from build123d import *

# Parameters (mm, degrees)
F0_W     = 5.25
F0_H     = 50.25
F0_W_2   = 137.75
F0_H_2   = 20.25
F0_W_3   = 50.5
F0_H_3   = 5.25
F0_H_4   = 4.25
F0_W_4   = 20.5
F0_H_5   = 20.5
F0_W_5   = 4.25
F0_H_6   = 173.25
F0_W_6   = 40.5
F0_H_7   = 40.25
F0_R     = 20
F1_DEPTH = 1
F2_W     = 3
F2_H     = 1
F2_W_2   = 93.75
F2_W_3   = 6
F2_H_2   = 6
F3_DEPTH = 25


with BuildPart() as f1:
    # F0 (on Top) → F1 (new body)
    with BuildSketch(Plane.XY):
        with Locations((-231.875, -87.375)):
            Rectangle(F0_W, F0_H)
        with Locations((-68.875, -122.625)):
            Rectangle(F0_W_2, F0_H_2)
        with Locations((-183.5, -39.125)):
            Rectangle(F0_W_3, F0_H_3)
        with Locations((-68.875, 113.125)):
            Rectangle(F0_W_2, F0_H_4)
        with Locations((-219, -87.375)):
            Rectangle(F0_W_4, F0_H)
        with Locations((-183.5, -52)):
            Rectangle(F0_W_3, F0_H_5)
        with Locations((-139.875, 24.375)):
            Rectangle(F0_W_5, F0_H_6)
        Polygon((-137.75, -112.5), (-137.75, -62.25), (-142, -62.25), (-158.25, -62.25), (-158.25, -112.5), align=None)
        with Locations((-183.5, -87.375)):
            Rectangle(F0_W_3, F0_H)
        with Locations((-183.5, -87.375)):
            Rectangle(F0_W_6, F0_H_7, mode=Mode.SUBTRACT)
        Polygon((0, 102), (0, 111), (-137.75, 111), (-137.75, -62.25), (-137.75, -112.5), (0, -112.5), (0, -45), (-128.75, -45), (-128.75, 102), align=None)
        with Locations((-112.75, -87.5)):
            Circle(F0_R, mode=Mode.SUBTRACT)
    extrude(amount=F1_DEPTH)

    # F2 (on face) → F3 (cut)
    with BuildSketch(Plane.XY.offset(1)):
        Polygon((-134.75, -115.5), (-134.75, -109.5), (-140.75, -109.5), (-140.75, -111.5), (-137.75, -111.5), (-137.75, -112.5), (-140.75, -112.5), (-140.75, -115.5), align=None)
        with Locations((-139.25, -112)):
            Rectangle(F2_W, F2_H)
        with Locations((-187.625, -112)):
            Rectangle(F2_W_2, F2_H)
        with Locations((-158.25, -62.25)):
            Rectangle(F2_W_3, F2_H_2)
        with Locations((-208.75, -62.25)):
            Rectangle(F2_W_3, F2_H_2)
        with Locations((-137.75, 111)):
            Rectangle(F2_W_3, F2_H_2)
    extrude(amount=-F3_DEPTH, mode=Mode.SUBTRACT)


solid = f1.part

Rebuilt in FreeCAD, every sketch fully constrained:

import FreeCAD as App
import Part
import Sketcher

V = App.Vector
Q = App.Units.Quantity

doc = App.newDocument("Part")
body = doc.addObject("PartDesign::Body", "Body")

sketch1 = doc.addObject("Sketcher::SketchObject", "Sketch")
body.addObject(sketch1)
sketch1.AttachmentSupport = (doc.XY_Plane, [""])
sketch1.MapMode = "FlatFace"
sketch1.addGeometry(Part.LineSegment(V(-234.5, -62.2, 0), V(-234.5, -112.5, 0)), False)
sketch1.addGeometry(Part.LineSegment(V(-234.5, -112.5, 0), V(-137.8, -112.5, 0)), False)
sketch1.addGeometry(Part.LineSegment(V(-137.8, -112.5, 0), V(-137.8, -132.8, 0)), False)
sketch1.addGeometry(Part.LineSegment(V(-137.8, -132.8, 0), V(0, -132.8, 0)), False)
sketch1.addGeometry(Part.LineSegment(V(0, -132.8, 0), V(0, -45, 0)), False)
sketch1.addGeometry(Part.LineSegment(V(0, -45, 0), V(-128.8, -45, 0)), False)
sketch1.addGeometry(Part.LineSegment(V(-128.8, -45, 0), V(-128.8, 102, 0)), False)
sketch1.addGeometry(Part.LineSegment(V(-128.8, 102, 0), V(0, 102, 0)), False)
sketch1.addGeometry(Part.LineSegment(V(0, 102, 0), V(0, 115.2, 0)), False)
sketch1.addGeometry(Part.LineSegment(V(0, 115.2, 0), V(-137.8, 115.2, 0)), False)
sketch1.addGeometry(Part.LineSegment(V(-137.8, 115.2, 0), V(-137.8, 111, 0)), False)
sketch1.addGeometry(Part.LineSegment(V(-137.8, 111, 0), V(-142, 111, 0)), False)
sketch1.addGeometry(Part.LineSegment(V(-142, 111, 0), V(-142, -62.2, 0)), False)
sketch1.addGeometry(Part.LineSegment(V(-142, -62.2, 0), V(-158.2, -62.2, 0)), False)
sketch1.addGeometry(Part.LineSegment(V(-158.2, -62.2, 0), V(-158.2, -36.5, 0)), False)
sketch1.addGeometry(Part.LineSegment(V(-158.2, -36.5, 0), V(-208.8, -36.5, 0)), False)
sketch1.addGeometry(Part.LineSegment(V(-208.8, -36.5, 0), V(-208.8, -62.2, 0)), False)
sketch1.addGeometry(Part.LineSegment(V(-208.8, -62.2, 0), V(-234.5, -62.2, 0)), False)
sketch1.addGeometry(Part.LineSegment(V(-163.2, -107.5, 0), V(-203.8, -107.5, 0)), False)
sketch1.addGeometry(Part.LineSegment(V(-203.8, -107.5, 0), V(-203.8, -67.2, 0)), False)
sketch1.addGeometry(Part.LineSegment(V(-203.8, -67.2, 0), V(-163.2, -67.2, 0)), False)
sketch1.addGeometry(Part.LineSegment(V(-163.2, -67.2, 0), V(-163.2, -107.5, 0)), False)
sketch1.addGeometry(Part.Circle(V(-112.8, -87.5, 0), V(0, 0, 1), 20), False)
sketch1.addConstraint(Sketcher.Constraint("Coincident", 0, 2, 1, 1))
sketch1.addConstraint(Sketcher.Constraint("Coincident", 1, 2, 2, 1))
sketch1.addConstraint(Sketcher.Constraint("Coincident", 2, 2, 3, 1))
sketch1.addConstraint(Sketcher.Constraint("Coincident", 3, 2, 4, 1))
sketch1.addConstraint(Sketcher.Constraint("Coincident", 4, 2, 5, 1))
sketch1.addConstraint(Sketcher.Constraint("Coincident", 5, 2, 6, 1))
sketch1.addConstraint(Sketcher.Constraint("Coincident", 6, 2, 7, 1))
sketch1.addConstraint(Sketcher.Constraint("Coincident", 7, 2, 8, 1))
sketch1.addConstraint(Sketcher.Constraint("Coincident", 8, 2, 9, 1))
sketch1.addConstraint(Sketcher.Constraint("Coincident", 9, 2, 10, 1))
sketch1.addConstraint(Sketcher.Constraint("Coincident", 10, 2, 11, 1))
sketch1.addConstraint(Sketcher.Constraint("Coincident", 11, 2, 12, 1))
sketch1.addConstraint(Sketcher.Constraint("Coincident", 12, 2, 13, 1))
sketch1.addConstraint(Sketcher.Constraint("Coincident", 13, 2, 14, 1))
sketch1.addConstraint(Sketcher.Constraint("Coincident", 14, 2, 15, 1))
sketch1.addConstraint(Sketcher.Constraint("Coincident", 15, 2, 16, 1))
sketch1.addConstraint(Sketcher.Constraint("Coincident", 16, 2, 17, 1))
sketch1.addConstraint(Sketcher.Constraint("Coincident", 17, 2, 0, 1))
sketch1.addConstraint(Sketcher.Constraint("Coincident", 18, 2, 19, 1))
sketch1.addConstraint(Sketcher.Constraint("Coincident", 19, 2, 20, 1))
sketch1.addConstraint(Sketcher.Constraint("Coincident", 20, 2, 21, 1))
sketch1.addConstraint(Sketcher.Constraint("Coincident", 21, 2, 18, 1))
sketch1.addConstraint(Sketcher.Constraint("Vertical", 0))
sketch1.addConstraint(Sketcher.Constraint("Horizontal", 1))
sketch1.addConstraint(Sketcher.Constraint("Vertical", 2))
sketch1.addConstraint(Sketcher.Constraint("Horizontal", 3))
sketch1.addConstraint(Sketcher.Constraint("Vertical", 4))
sketch1.addConstraint(Sketcher.Constraint("Horizontal", 5))
sketch1.addConstraint(Sketcher.Constraint("Vertical", 6))
sketch1.addConstraint(Sketcher.Constraint("Horizontal", 7))
sketch1.addConstraint(Sketcher.Constraint("Vertical", 8))
sketch1.addConstraint(Sketcher.Constraint("Horizontal", 9))
sketch1.addConstraint(Sketcher.Constraint("Vertical", 10))
sketch1.addConstraint(Sketcher.Constraint("Horizontal", 11))
sketch1.addConstraint(Sketcher.Constraint("Vertical", 12))
sketch1.addConstraint(Sketcher.Constraint("Horizontal", 13))
sketch1.addConstraint(Sketcher.Constraint("Vertical", 14))
sketch1.addConstraint(Sketcher.Constraint("Horizontal", 15))
sketch1.addConstraint(Sketcher.Constraint("Vertical", 16))
sketch1.addConstraint(Sketcher.Constraint("Horizontal", 17))
sketch1.addConstraint(Sketcher.Constraint("Horizontal", 18))
sketch1.addConstraint(Sketcher.Constraint("Vertical", 19))
sketch1.addConstraint(Sketcher.Constraint("Horizontal", 20))
sketch1.addConstraint(Sketcher.Constraint("Vertical", 21))
sketch1.addConstraint(Sketcher.Constraint("PointOnObject", 3, 2, -2))
sketch1.addConstraint(Sketcher.Constraint("PointOnObject", 7, 2, -2))
sketch1.addConstraint(Sketcher.Constraint("Horizontal", 13, 2, 16, 2))
sketch1.addConstraint(Sketcher.Constraint("Vertical", 2, 2, 9, 2))
sketch1.addConstraint(Sketcher.Constraint("Equal", 11, 10))
sketch1.addConstraint(Sketcher.Constraint("Equal", 17, 14))
sketch1.addConstraint(Sketcher.Constraint("Diameter", 22, Q("40 mm")))
sketch1.addConstraint(Sketcher.Constraint("DistanceY", 6, 1, 6, 2, Q("147 mm")))
sketch1.addConstraint(Sketcher.Constraint("DistanceX", 15, 2, 15, 1, Q("50.5 mm")))
sketch1.addConstraint(Sketcher.Constraint("DistanceX", 18, 2, 18, 1, Q("40.5 mm")))
sketch1.addConstraint(Sketcher.Constraint("DistanceY", 4, 2, -1, 1, Q("45 mm")))
sketch1.addConstraint(Sketcher.Constraint("DistanceY", -1, 1, 10, 2, Q("111 mm")))
sketch1.addConstraint(Sketcher.Constraint("DistanceX", 11, 2, -1, 1, Q("142 mm")))
sketch1.addConstraint(Sketcher.Constraint("DistanceY", 0, 2, 22, 3, Q("25 mm")))
sketch1.addConstraint(Sketcher.Constraint("DistanceX", 1, 2, 22, 3, Q("25 mm")))
sketch1.addConstraint(Sketcher.Constraint("DistanceX", 5, 2, 22, 3, Q("16 mm")))
sketch1.addConstraint(Sketcher.Constraint("DistanceY", 22, 3, 14, 2, Q("51 mm")))
sketch1.addConstraint(Sketcher.Constraint("DistanceX", 15, 2, 5, 2, Q("80 mm")))
sketch1.addConstraint(Sketcher.Constraint("DistanceY", 0, 2, 18, 2, Q("5 mm")))
sketch1.addConstraint(Sketcher.Constraint("DistanceX", 16, 2, 18, 2, Q("5 mm")))
sketch1.addConstraint(Sketcher.Constraint("DistanceY", 19, 2, 16, 2, Q("5 mm")))
sketch1.addConstraint(Sketcher.Constraint("DistanceX", 1, 1, 1, 2, Q("96.75 mm")))
sketch1.addConstraint(Sketcher.Constraint("DistanceX", 3, 1, 3, 2, Q("137.75 mm")))
sketch1.addConstraint(Sketcher.Constraint("DistanceY", 2, 2, 2, 1, Q("20.25 mm")))
sketch1.addConstraint(Sketcher.Constraint("DistanceY", 4, 1, 4, 2, Q("87.75 mm")))
pad1 = doc.addObject("PartDesign::Pad", "Pad")
body.addObject(pad1)
pad1.Profile = sketch1
pad1.Length = 1

sketch2 = doc.addObject("Sketcher::SketchObject", "Sketch001")
body.addObject(sketch2)
sketch2.AttachmentSupport = (doc.XY_Plane, [""])
sketch2.MapMode = "FlatFace"
sketch2.AttachmentOffset = App.Placement(V(0, 0, 1), App.Rotation())
sketch2.addGeometry(Part.LineSegment(V(-134.8, -115.5, 0), V(-134.8, -109.5, 0)), False)
sketch2.addGeometry(Part.LineSegment(V(-134.8, -109.5, 0), V(-140.8, -109.5, 0)), False)
sketch2.addGeometry(Part.LineSegment(V(-140.8, -109.5, 0), V(-140.8, -111.5, 0)), False)
sketch2.addGeometry(Part.LineSegment(V(-140.8, -111.5, 0), V(-234.5, -111.5, 0)), False)
sketch2.addGeometry(Part.LineSegment(V(-234.5, -111.5, 0), V(-234.5, -112.5, 0)), False)
sketch2.addGeometry(Part.LineSegment(V(-234.5, -112.5, 0), V(-140.8, -112.5, 0)), False)
sketch2.addGeometry(Part.LineSegment(V(-140.8, -112.5, 0), V(-140.8, -115.5, 0)), False)
sketch2.addGeometry(Part.LineSegment(V(-140.8, -115.5, 0), V(-134.8, -115.5, 0)), False)
sketch2.addGeometry(Part.LineSegment(V(-161.2, -59.2, 0), V(-161.2, -65.2, 0)), False)
sketch2.addGeometry(Part.LineSegment(V(-161.2, -65.2, 0), V(-155.2, -65.2, 0)), False)
sketch2.addGeometry(Part.LineSegment(V(-155.2, -65.2, 0), V(-155.2, -59.2, 0)), False)
sketch2.addGeometry(Part.LineSegment(V(-155.2, -59.2, 0), V(-161.2, -59.2, 0)), False)
sketch2.addGeometry(Part.LineSegment(V(-211.8, -59.2, 0), V(-211.8, -65.2, 0)), False)
sketch2.addGeometry(Part.LineSegment(V(-211.8, -65.2, 0), V(-205.8, -65.2, 0)), False)
sketch2.addGeometry(Part.LineSegment(V(-205.8, -65.2, 0), V(-205.8, -59.2, 0)), False)
sketch2.addGeometry(Part.LineSegment(V(-205.8, -59.2, 0), V(-211.8, -59.2, 0)), False)
sketch2.addGeometry(Part.LineSegment(V(-140.8, 114, 0), V(-140.8, 108, 0)), False)
sketch2.addGeometry(Part.LineSegment(V(-140.8, 108, 0), V(-134.8, 108, 0)), False)
sketch2.addGeometry(Part.LineSegment(V(-134.8, 108, 0), V(-134.8, 114, 0)), False)
sketch2.addGeometry(Part.LineSegment(V(-134.8, 114, 0), V(-140.8, 114, 0)), False)
sketch2.addConstraint(Sketcher.Constraint("Coincident", 0, 2, 1, 1))
sketch2.addConstraint(Sketcher.Constraint("Coincident", 1, 2, 2, 1))
sketch2.addConstraint(Sketcher.Constraint("Coincident", 2, 2, 3, 1))
sketch2.addConstraint(Sketcher.Constraint("Coincident", 3, 2, 4, 1))
sketch2.addConstraint(Sketcher.Constraint("Coincident", 4, 2, 5, 1))
sketch2.addConstraint(Sketcher.Constraint("Coincident", 5, 2, 6, 1))
sketch2.addConstraint(Sketcher.Constraint("Coincident", 6, 2, 7, 1))
sketch2.addConstraint(Sketcher.Constraint("Coincident", 7, 2, 0, 1))
sketch2.addConstraint(Sketcher.Constraint("Coincident", 8, 2, 9, 1))
sketch2.addConstraint(Sketcher.Constraint("Coincident", 9, 2, 10, 1))
sketch2.addConstraint(Sketcher.Constraint("Coincident", 10, 2, 11, 1))
sketch2.addConstraint(Sketcher.Constraint("Coincident", 11, 2, 8, 1))
sketch2.addConstraint(Sketcher.Constraint("Coincident", 12, 2, 13, 1))
sketch2.addConstraint(Sketcher.Constraint("Coincident", 13, 2, 14, 1))
sketch2.addConstraint(Sketcher.Constraint("Coincident", 14, 2, 15, 1))
sketch2.addConstraint(Sketcher.Constraint("Coincident", 15, 2, 12, 1))
sketch2.addConstraint(Sketcher.Constraint("Coincident", 16, 2, 17, 1))
sketch2.addConstraint(Sketcher.Constraint("Coincident", 17, 2, 18, 1))
sketch2.addConstraint(Sketcher.Constraint("Coincident", 18, 2, 19, 1))
sketch2.addConstraint(Sketcher.Constraint("Coincident", 19, 2, 16, 1))
sketch2.addConstraint(Sketcher.Constraint("Vertical", 0))
sketch2.addConstraint(Sketcher.Constraint("Horizontal", 1))
sketch2.addConstraint(Sketcher.Constraint("Vertical", 2))
sketch2.addConstraint(Sketcher.Constraint("Horizontal", 3))
sketch2.addConstraint(Sketcher.Constraint("Vertical", 4))
sketch2.addConstraint(Sketcher.Constraint("Horizontal", 5))
sketch2.addConstraint(Sketcher.Constraint("Vertical", 6))
sketch2.addConstraint(Sketcher.Constraint("Horizontal", 7))
sketch2.addConstraint(Sketcher.Constraint("Vertical", 8))
sketch2.addConstraint(Sketcher.Constraint("Horizontal", 9))
sketch2.addConstraint(Sketcher.Constraint("Vertical", 10))
sketch2.addConstraint(Sketcher.Constraint("Horizontal", 11))
sketch2.addConstraint(Sketcher.Constraint("Vertical", 12))
sketch2.addConstraint(Sketcher.Constraint("Horizontal", 13))
sketch2.addConstraint(Sketcher.Constraint("Vertical", 14))
sketch2.addConstraint(Sketcher.Constraint("Horizontal", 15))
sketch2.addConstraint(Sketcher.Constraint("Vertical", 16))
sketch2.addConstraint(Sketcher.Constraint("Horizontal", 17))
sketch2.addConstraint(Sketcher.Constraint("Vertical", 18))
sketch2.addConstraint(Sketcher.Constraint("Horizontal", 19))
sketch2.addConstraint(Sketcher.Constraint("Horizontal", 9, 2, 12, 2))
sketch2.addConstraint(Sketcher.Constraint("Horizontal", 11, 2, 14, 2))
sketch2.addConstraint(Sketcher.Constraint("Vertical", 2, 2, 5, 2))
sketch2.addConstraint(Sketcher.Constraint("Vertical", 6, 2, 16, 2))
sketch2.addConstraint(Sketcher.Constraint("Vertical", 7, 2, 17, 2))
sketch2.addConstraint(Sketcher.Constraint("Equal", 7, 9))
sketch2.addConstraint(Sketcher.Constraint("Equal", 11, 13))
sketch2.addConstraint(Sketcher.Constraint("Equal", 19, 0))
sketch2.addConstraint(Sketcher.Constraint("Equal", 0, 8))
sketch2.addConstraint(Sketcher.Constraint("Equal", 14, 16))
sketch2.addConstraint(Sketcher.Constraint("DistanceX", 1, 2, 1, 1, Q("6 mm")))
sketch2.addConstraint(Sketcher.Constraint("DistanceY", 2, 2, 2, 1, Q("2 mm")))
sketch2.addConstraint(Sketcher.Constraint("DistanceY", 4, 2, 4, 1, Q("1 mm")))
sketch2.addConstraint(Sketcher.Constraint("DistanceY", -1, 1, 16, 2, Q("108 mm")))
sketch2.addConstraint(Sketcher.Constraint("DistanceX", 14, 2, 16, 2, Q("65 mm")))
sketch2.addConstraint(Sketcher.Constraint("DistanceX", 3, 2, 3, 1, Q("93.75 mm")))
sketch2.addConstraint(Sketcher.Constraint("DistanceY", 0, 2, -1, 1, Q("109.5 mm")))
sketch2.addConstraint(Sketcher.Constraint("DistanceX", 3, 2, -1, 1, Q("234.5 mm")))
sketch2.addConstraint(Sketcher.Constraint("DistanceX", 8, 2, 1, 2, Q("20.5 mm")))
sketch2.addConstraint(Sketcher.Constraint("DistanceY", 8, 2, -1, 1, Q("65.25 mm")))
pocket1 = doc.addObject("PartDesign::Pocket", "Pocket")
body.addObject(pocket1)
pocket1.Profile = sketch2
pocket1.Length = 25

doc.recompute()
